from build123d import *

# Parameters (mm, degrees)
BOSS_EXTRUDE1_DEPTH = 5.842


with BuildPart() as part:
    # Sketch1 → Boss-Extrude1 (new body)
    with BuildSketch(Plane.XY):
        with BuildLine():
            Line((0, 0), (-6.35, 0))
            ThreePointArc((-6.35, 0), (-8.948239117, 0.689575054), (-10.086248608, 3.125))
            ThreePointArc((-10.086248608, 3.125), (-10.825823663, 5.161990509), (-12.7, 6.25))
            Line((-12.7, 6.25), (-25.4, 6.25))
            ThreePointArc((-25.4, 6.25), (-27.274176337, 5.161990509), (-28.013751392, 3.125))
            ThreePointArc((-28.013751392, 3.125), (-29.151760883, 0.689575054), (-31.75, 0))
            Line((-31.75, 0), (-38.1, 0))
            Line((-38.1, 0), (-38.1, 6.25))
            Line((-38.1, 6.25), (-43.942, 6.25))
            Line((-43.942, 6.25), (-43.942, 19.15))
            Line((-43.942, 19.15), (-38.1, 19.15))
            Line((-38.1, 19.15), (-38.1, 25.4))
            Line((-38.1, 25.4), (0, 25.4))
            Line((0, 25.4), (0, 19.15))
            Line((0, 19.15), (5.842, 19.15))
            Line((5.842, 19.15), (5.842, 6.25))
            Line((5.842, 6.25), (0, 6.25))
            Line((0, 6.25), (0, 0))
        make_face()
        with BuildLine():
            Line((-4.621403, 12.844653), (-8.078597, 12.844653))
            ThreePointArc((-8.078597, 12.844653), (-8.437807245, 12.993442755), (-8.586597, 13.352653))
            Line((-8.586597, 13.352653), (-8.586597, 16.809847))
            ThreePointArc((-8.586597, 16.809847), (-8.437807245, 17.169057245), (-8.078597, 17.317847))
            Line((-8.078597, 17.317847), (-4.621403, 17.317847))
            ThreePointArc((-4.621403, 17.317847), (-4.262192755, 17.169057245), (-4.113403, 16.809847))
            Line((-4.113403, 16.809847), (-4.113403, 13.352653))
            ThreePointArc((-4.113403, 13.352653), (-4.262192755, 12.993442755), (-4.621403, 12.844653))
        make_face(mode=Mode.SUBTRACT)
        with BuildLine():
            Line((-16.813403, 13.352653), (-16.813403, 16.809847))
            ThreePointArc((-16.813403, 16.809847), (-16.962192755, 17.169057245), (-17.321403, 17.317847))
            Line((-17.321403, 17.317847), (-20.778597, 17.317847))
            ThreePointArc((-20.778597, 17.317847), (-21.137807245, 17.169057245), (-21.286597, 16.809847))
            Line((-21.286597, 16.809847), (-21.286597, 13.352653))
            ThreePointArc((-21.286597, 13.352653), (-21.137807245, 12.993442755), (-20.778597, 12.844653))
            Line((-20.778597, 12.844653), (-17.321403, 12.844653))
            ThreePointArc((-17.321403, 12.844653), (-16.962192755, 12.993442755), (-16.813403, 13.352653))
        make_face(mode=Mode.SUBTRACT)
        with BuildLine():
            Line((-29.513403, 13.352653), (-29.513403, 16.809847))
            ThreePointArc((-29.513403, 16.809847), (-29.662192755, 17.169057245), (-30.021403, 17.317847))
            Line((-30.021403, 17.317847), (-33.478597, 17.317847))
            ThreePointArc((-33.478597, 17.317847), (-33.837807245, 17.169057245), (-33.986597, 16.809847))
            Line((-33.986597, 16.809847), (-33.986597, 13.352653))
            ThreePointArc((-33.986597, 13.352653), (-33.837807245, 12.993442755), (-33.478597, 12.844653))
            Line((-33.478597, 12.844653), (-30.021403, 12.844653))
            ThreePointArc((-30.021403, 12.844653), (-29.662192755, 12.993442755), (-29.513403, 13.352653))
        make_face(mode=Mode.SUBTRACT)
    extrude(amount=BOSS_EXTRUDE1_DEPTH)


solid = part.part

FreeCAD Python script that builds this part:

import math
import FreeCAD as App
import Part
import Sketcher

V = App.Vector
Q = App.Units.Quantity

doc = App.newDocument("Part")
body = doc.addObject("PartDesign::Body", "Body")

sketch1 = body.newObject("Sketcher::SketchObject", "Sketch")
sketch1.AttachmentSupport = (doc.getObject("XY_Plane"), [""])
sketch1.MapMode = "FlatFace"
sketch1.addGeometry(Part.LineSegment(V(-6.3, 0, 0), V(0, 0, 0)), False)
sketch1.addGeometry(Part.LineSegment(V(0, 0, 0), V(0, 6.2, 0)), False)
sketch1.addGeometry(Part.LineSegment(V(0, 6.2, 0), V(5.8, 6.2, 0)), False)
sketch1.addGeometry(Part.LineSegment(V(5.8, 6.2, 0), V(5.8, 19.1, 0)), False)
sketch1.addGeometry(Part.LineSegment(V(5.8, 19.1, 0), V(0, 19.1, 0)), False)
sketch1.addGeometry(Part.LineSegment(V(0, 19.1, 0), V(0, 25.4, 0)), False)
sketch1.addGeometry(Part.LineSegment(V(0, 25.4, 0), V(-38.1, 25.4, 0)), False)
sketch1.addGeometry(Part.LineSegment(V(-38.1, 25.4, 0), V(-38.1, 19.1, 0)), False)
sketch1.addGeometry(Part.LineSegment(V(-38.1, 19.1, 0), V(-43.9, 19.1, 0)), False)
sketch1.addGeometry(Part.LineSegment(V(-43.9, 19.1, 0), V(-43.9, 6.2, 0)), False)
sketch1.addGeometry(Part.LineSegment(V(-43.9, 6.2, 0), V(-38.1, 6.2, 0)), False)
sketch1.addGeometry(Part.LineSegment(V(-38.1, 6.2, 0), V(-38.1, 0, 0)), False)
sketch1.addGeometry(Part.LineSegment(V(-38.1, 0, 0), V(-31.8, 0, 0)), False)
sketch1.addGeometry(Part.ArcOfCircle(Part.Circle(V(-31.2, 3.1, 0), V(0, 0, 1), 3.2), math.radians(-100), math.radians(0)), False)
sketch1.addGeometry(Part.ArcOfCircle(Part.Circle(V(-24.8, 3.1, 0), V(0, 0, 1), 3.2), math.radians(100), math.radians(180)), False)
sketch1.addGeometry(Part.LineSegment(V(-25.4, 6.2, 0), V(-12.7, 6.2, 0)), False)
sketch1.addGeometry(Part.ArcOfCircle(Part.Circle(V(-13.3, 3.1, 0), V(0, 0, 1), 3.2), math.radians(0), math.radians(80)), False)
sketch1.addGeometry(Part.ArcOfCircle(Part.Circle(V(-6.9, 3.1, 0), V(0, 0, 1), 3.2), math.radians(180), math.radians(280)), False)
sketch1.addGeometry(Part.LineSegment(V(-4.6, 12.8, 0), V(-8.1, 12.8, 0)), False)
sketch1.addGeometry(Part.ArcOfCircle(Part.Circle(V(-8.1, 13.4, 0), V(0, 0, 1), 0.5), math.radians(180), math.radians(270)), False)
sketch1.addGeometry(Part.LineSegment(V(-8.6, 13.4, 0), V(-8.6, 16.8, 0)), False)
sketch1.addGeometry(Part.ArcOfCircle(Part.Circle(V(-8.1, 16.8, 0), V(0, 0, 1), 0.5), math.radians(90), math.radians(180)), False)
sketch1.addGeometry(Part.LineSegment(V(-8.1, 17.3, 0), V(-4.6, 17.3, 0)), False)
sketch1.addGeometry(Part.ArcOfCircle(Part.Circle(V(-4.6, 16.8, 0), V(0, 0, 1), 0.5), math.radians(0), math.radians(90)), False)
sketch1.addGeometry(Part.LineSegment(V(-4.1, 16.8, 0), V(-4.1, 13.4, 0)), False)
sketch1.addGeometry(Part.ArcOfCircle(Part.Circle(V(-4.6, 13.4, 0), V(0, 0, 1), 0.5), math.radians(-90), math.radians(0)), False)
sketch1.addGeometry(Part.ArcOfCircle(Part.Circle(V(-17.3, 13.4, 0), V(0, 0, 1), 0.5), math.radians(-90), math.radians(0)), False)
sketch1.addGeometry(Part.LineSegment(V(-17.3, 12.8, 0), V(-20.8, 12.8, 0)), False)
sketch1.addGeometry(Part.ArcOfCircle(Part.Circle(V(-20.8, 13.4, 0), V(0, 0, 1), 0.5), math.radians(180), math.radians(270)), False)
sketch1.addGeometry(Part.LineSegment(V(-21.3, 13.4, 0), V(-21.3, 16.8, 0)), False)
sketch1.addGeometry(Part.ArcOfCircle(Part.Circle(V(-20.8, 16.8, 0), V(0, 0, 1), 0.5), math.radians(90), math.radians(180)), False)
sketch1.addGeometry(Part.LineSegment(V(-20.8, 17.3, 0), V(-17.3, 17.3, 0)), False)
sketch1.addGeometry(Part.ArcOfCircle(Part.Circle(V(-17.3, 16.8, 0), V(0, 0, 1), 0.5), math.radians(0), math.radians(90)), False)
sketch1.addGeometry(Part.LineSegment(V(-16.8, 16.8, 0), V(-16.8, 13.4, 0)), False)
sketch1.addGeometry(Part.ArcOfCircle(Part.Circle(V(-30, 13.4, 0), V(0, 0, 1), 0.5), math.radians(-90), math.radians(0)), False)
sketch1.addGeometry(Part.LineSegment(V(-30, 12.8, 0), V(-33.5, 12.8, 0)), False)
sketch1.addGeometry(Part.ArcOfCircle(Part.Circle(V(-33.5, 13.4, 0), V(0, 0, 1), 0.5), math.radians(180), math.radians(270)), False)
sketch1.addGeometry(Part.LineSegment(V(-34, 13.4, 0), V(-34, 16.8, 0)), False)
sketch1.addGeometry(Part.ArcOfCircle(Part.Circle(V(-33.5, 16.8, 0), V(0, 0, 1), 0.5), math.radians(90), math.radians(180)), False)
sketch1.addGeometry(Part.LineSegment(V(-33.5, 17.3, 0), V(-30, 17.3, 0)), False)
sketch1.addGeometry(Part.ArcOfCircle(Part.Circle(V(-30, 16.8, 0), V(0, 0, 1), 0.5), math.radians(0), math.radians(90)), False)
sketch1.addGeometry(Part.LineSegment(V(-29.5, 16.8, 0), V(-29.5, 13.4, 0)), False)
sketch1.addConstraint(Sketcher.Constraint("Coincident", 0, 2, 1, 1))
sketch1.addConstraint(Sketcher.Constraint("Coincident", 1, 2, 2, 1))
sketch1.addConstraint(Sketcher.Constraint("Coincident", 2, 2, 3, 1))
sketch1.addConstraint(Sketcher.Constraint("Coincident", 3, 2, 4, 1))
sketch1.addConstraint(Sketcher.Constraint("Coincident", 4, 2, 5, 1))
sketch1.addConstraint(Sketcher.Constraint("Coincident", 5, 2, 6, 1))
sketch1.addConstraint(Sketcher.Constraint("Coincident", 6, 2, 7, 1))
sketch1.addConstraint(Sketcher.Constraint("Coincident", 7, 2, 8, 1))
sketch1.addConstraint(Sketcher.Constraint("Coincident", 8, 2, 9, 1))
sketch1.addConstraint(Sketcher.Constraint("Coincident", 9, 2, 10, 1))
sketch1.addConstraint(Sketcher.Constraint("Coincident", 10, 2, 11, 1))
sketch1.addConstraint(Sketcher.Constraint("Coincident", 11, 2, 12, 1))
sketch1.addConstraint(Sketcher.Constraint("Coincident", 12, 2, 13, 1))
sketch1.addConstraint(Sketcher.Constraint("Tangent", 13, 2, 14, 2))
sketch1.addConstraint(Sketcher.Constraint("Coincident", 14, 1, 15, 1))
sketch1.addConstraint(Sketcher.Constraint("Coincident", 15, 2, 16, 2))
sketch1.addConstraint(Sketcher.Constraint("Tangent", 16, 1, 17, 1))
sketch1.addConstraint(Sketcher.Constraint("Coincident", 17, 2, 0, 1))
sketch1.addConstraint(Sketcher.Constraint("Tangent", 18, 2, 19, 2))
sketch1.addConstraint(Sketcher.Constraint("Tangent", 19, 1, 20, 1))
sketch1.addConstraint(Sketcher.Constraint("Tangent", 20, 2, 21, 2))
sketch1.addConstraint(Sketcher.Constraint("Tangent", 21, 1, 22, 1))
sketch1.addConstraint(Sketcher.Constraint("Tangent", 22, 2, 23, 2))
sketch1.addConstraint(Sketcher.Constraint("Tangent", 23, 1, 24, 1))
sketch1.addConstraint(Sketcher.Constraint("Tangent", 24, 2, 25, 2))
sketch1.addConstraint(Sketcher.Constraint("Tangent", 25, 1, 18, 1))
sketch1.addConstraint(Sketcher.Constraint("Tangent", 26, 1, 27, 1))
sketch1.addConstraint(Sketcher.Constraint("Tangent", 27, 2, 28, 2))
sketch1.addConstraint(Sketcher.Constraint("Tangent", 28, 1, 29, 1))
sketch1.addConstraint(Sketcher.Constraint("Tangent", 29, 2, 30, 2))
sketch1.addConstraint(Sketcher.Constraint("Tangent", 30, 1, 31, 1))
sketch1.addConstraint(Sketcher.Constraint("Tangent", 31, 2, 32, 2))
sketch1.addConstraint(Sketcher.Constraint("Tangent", 32, 1, 33, 1))
sketch1.addConstraint(Sketcher.Constraint("Tangent", 33, 2, 26, 2))
sketch1.addConstraint(Sketcher.Constraint("Tangent", 34, 1, 35, 1))
sketch1.addConstraint(Sketcher.Constraint("Tangent", 35, 2, 36, 2))
sketch1.addConstraint(Sketcher.Constraint("Tangent", 36, 1, 37, 1))
sketch1.addConstraint(Sketcher.Constraint("Tangent", 37, 2, 38, 2))
sketch1.addConstraint(Sketcher.Constraint("Tangent", 38, 1, 39, 1))
sketch1.addConstraint(Sketcher.Constraint("Tangent", 39, 2, 40, 2))
sketch1.addConstraint(Sketcher.Constraint("Tangent", 40, 1, 41, 1))
sketch1.addConstraint(Sketcher.Constraint("Tangent", 41, 2, 34, 2))
sketch1.addConstraint(Sketcher.Constraint("Horizontal", 0))
sketch1.addConstraint(Sketcher.Constraint("Vertical", 1))
sketch1.addConstraint(Sketcher.Constraint("Horizontal", 2))
sketch1.addConstraint(Sketcher.Constraint("Vertical", 3))
sketch1.addConstraint(Sketcher.Constraint("Horizontal", 4))
sketch1.addConstraint(Sketcher.Constraint("Vertical", 5))
sketch1.addConstraint(Sketcher.Constraint("Horizontal", 6))
sketch1.addConstraint(Sketcher.Constraint("Vertical", 7))
sketch1.addConstraint(Sketcher.Constraint("Horizontal", 8))
sketch1.addConstraint(Sketcher.Constraint("Vertical", 9))
sketch1.addConstraint(Sketcher.Constraint("Horizontal", 10))
sketch1.addConstraint(Sketcher.Constraint("Vertical", 11))
sketch1.addConstraint(Sketcher.Constraint("Horizontal", 12))
sketch1.addConstraint(Sketcher.Constraint("Horizontal", 15))
sketch1.addConstraint(Sketcher.Constraint("Horizontal", 18))
sketch1.addConstraint(Sketcher.Constraint("Vertical", 20))
sketch1.addConstraint(Sketcher.Constraint("Horizontal", 22))
sketch1.addConstraint(Sketcher.Constraint("Vertical", 24))
sketch1.addConstraint(Sketcher.Constraint("Horizontal", 27))
sketch1.addConstraint(Sketcher.Constraint("Vertical", 29))
sketch1.addConstraint(Sketcher.Constraint("Horizontal", 31))
sketch1.addConstraint(Sketcher.Constraint("Vertical", 33))
sketch1.addConstraint(Sketcher.Constraint("Horizontal", 35))
sketch1.addConstraint(Sketcher.Constraint("Vertical", 37))
sketch1.addConstraint(Sketcher.Constraint("Horizontal", 39))
sketch1.addConstraint(Sketcher.Constraint("Vertical", 41))
sketch1.addConstraint(Sketcher.Constraint("Coincident", 0, 2, -1, 1))
sketch1.addConstraint(Sketcher.Constraint("Equal", 13, 14))
sketch1.addConstraint(Sketcher.Constraint("Equal", 14, 16))
sketch1.addConstraint(Sketcher.Constraint("Equal", 16, 17))
sketch1.addConstraint(Sketcher.Constraint("Equal", 19, 21))
sketch1.addConstraint(Sketcher.Constraint("Equal", 21, 23))
sketch1.addConstraint(Sketcher.Constraint("Equal", 23, 25))
sketch1.addConstraint(Sketcher.Constraint("Equal", 25, 26))
sketch1.addConstraint(Sketcher.Constraint("Equal", 26, 28))
sketch1.addConstraint(Sketcher.Constraint("Equal", 28, 30))
sketch1.addConstraint(Sketcher.Constraint("Equal", 30, 32))
sketch1.addConstraint(Sketcher.Constraint("Equal", 32, 34))
sketch1.addConstraint(Sketcher.Constraint("Equal", 34, 36))
sketch1.addConstraint(Sketcher.Constraint("Equal", 36, 38))
sketch1.addConstraint(Sketcher.Constraint("Equal", 38, 40))
sketch1.addConstraint(Sketcher.Constraint("PointOnObject", 4, 2, -2))
sketch1.addConstraint(Sketcher.Constraint("PointOnObject", 11, 2, -1))
sketch1.addConstraint(Sketcher.Constraint("Horizontal", 13, 3, 14, 3))
sketch1.addConstraint(Sketcher.Constraint("Horizontal", 14, 3, 16, 3))
sketch1.addConstraint(Sketcher.Constraint("Horizontal", 16, 3, 17, 3))
sketch1.addConstraint(Sketcher.Constraint("Horizontal", 25, 3, 26, 3))
sketch1.addConstraint(Sketcher.Constraint("Horizontal", 23, 3, 30, 3))
sketch1.addConstraint(Sketcher.Constraint("Horizontal", 28, 3, 34, 3))
sketch1.addConstraint(Sketcher.Constraint("Horizontal", 32, 3, 38, 3))
sketch1.addConstraint(Sketcher.Constraint("Horizontal", 4, 2, 7, 2))
sketch1.addConstraint(Sketcher.Constraint("Horizontal", 2, 2, 9, 2))
sketch1.addConstraint(Sketcher.Constraint("Horizontal", 10, 2, 14, 1))
sketch1.addConstraint(Sketcher.Constraint("Vertical", 7, 2, 10, 2))
sketch1.addConstraint(Sketcher.Constraint("Equal", 4, 8))
sketch1.addConstraint(Sketcher.Constraint("Equal", 0, 12))
sketch1.addConstraint(Sketcher.Constraint("Equal", 22, 27))
sketch1.addConstraint(Sketcher.Constraint("Equal", 31, 35))
sketch1.addConstraint(Sketcher.Constraint("Equal", 1, 5))
sketch1.addConstraint(Sketcher.Constraint("Equal", 39, 20))
sketch1.addConstraint(Sketcher.Constraint("Radius", 19, Q("0.02 in")))
sketch1.addConstraint(Sketcher.Constraint("DistanceX", 6, 2, 6, 1, Q("1.5 in")))
sketch1.addConstraint(Sketcher.Constraint("DistanceX", 15, 1, 15, 2, Q("0.5 in")))
sketch1.addConstraint(Sketcher.Constraint("DistanceY", -1, 1, 5, 2, Q("1 in")))
sketch1.addConstraint(Sketcher.Constraint("Radius", 13, Q("0.125 in")))
sketch1.addConstraint(Sketcher.Constraint("DistanceX", 0, 1, 0, 2, Q("0.25 in")))
sketch1.addConstraint(Sketcher.Constraint("DistanceX", 2, 1, 2, 2, Q("0.23 in")))
sketch1.addConstraint(Sketcher.Constraint("DistanceX", 26, 3, 25, 3, Q("0.5 in")))
sketch1.addConstraint(Sketcher.Constraint("DistanceX", 34, 3, 26, 3, Q("0.5 in")))
sketch1.addConstraint(Sketcher.Constraint("DistanceY", 1, 1, 1, 2, Q("6.25 mm")))
sketch1.addConstraint(Sketcher.Constraint("DistanceX", 18, 2, 18, 1, Q("3.457194 mm")))
sketch1.addConstraint(Sketcher.Constraint("DistanceX", 19, 3, 17, 3, Q("1.167348 mm")))
sketch1.addConstraint(Sketcher.Constraint("DistanceY", -1, 1, 19, 3, Q("13.352653 mm")))
pad1 = body.newObject("PartDesign::Pad", "Pad")
pad1.Profile = sketch1
pad1.Length = Q("0.23 in")

doc.recompute()
